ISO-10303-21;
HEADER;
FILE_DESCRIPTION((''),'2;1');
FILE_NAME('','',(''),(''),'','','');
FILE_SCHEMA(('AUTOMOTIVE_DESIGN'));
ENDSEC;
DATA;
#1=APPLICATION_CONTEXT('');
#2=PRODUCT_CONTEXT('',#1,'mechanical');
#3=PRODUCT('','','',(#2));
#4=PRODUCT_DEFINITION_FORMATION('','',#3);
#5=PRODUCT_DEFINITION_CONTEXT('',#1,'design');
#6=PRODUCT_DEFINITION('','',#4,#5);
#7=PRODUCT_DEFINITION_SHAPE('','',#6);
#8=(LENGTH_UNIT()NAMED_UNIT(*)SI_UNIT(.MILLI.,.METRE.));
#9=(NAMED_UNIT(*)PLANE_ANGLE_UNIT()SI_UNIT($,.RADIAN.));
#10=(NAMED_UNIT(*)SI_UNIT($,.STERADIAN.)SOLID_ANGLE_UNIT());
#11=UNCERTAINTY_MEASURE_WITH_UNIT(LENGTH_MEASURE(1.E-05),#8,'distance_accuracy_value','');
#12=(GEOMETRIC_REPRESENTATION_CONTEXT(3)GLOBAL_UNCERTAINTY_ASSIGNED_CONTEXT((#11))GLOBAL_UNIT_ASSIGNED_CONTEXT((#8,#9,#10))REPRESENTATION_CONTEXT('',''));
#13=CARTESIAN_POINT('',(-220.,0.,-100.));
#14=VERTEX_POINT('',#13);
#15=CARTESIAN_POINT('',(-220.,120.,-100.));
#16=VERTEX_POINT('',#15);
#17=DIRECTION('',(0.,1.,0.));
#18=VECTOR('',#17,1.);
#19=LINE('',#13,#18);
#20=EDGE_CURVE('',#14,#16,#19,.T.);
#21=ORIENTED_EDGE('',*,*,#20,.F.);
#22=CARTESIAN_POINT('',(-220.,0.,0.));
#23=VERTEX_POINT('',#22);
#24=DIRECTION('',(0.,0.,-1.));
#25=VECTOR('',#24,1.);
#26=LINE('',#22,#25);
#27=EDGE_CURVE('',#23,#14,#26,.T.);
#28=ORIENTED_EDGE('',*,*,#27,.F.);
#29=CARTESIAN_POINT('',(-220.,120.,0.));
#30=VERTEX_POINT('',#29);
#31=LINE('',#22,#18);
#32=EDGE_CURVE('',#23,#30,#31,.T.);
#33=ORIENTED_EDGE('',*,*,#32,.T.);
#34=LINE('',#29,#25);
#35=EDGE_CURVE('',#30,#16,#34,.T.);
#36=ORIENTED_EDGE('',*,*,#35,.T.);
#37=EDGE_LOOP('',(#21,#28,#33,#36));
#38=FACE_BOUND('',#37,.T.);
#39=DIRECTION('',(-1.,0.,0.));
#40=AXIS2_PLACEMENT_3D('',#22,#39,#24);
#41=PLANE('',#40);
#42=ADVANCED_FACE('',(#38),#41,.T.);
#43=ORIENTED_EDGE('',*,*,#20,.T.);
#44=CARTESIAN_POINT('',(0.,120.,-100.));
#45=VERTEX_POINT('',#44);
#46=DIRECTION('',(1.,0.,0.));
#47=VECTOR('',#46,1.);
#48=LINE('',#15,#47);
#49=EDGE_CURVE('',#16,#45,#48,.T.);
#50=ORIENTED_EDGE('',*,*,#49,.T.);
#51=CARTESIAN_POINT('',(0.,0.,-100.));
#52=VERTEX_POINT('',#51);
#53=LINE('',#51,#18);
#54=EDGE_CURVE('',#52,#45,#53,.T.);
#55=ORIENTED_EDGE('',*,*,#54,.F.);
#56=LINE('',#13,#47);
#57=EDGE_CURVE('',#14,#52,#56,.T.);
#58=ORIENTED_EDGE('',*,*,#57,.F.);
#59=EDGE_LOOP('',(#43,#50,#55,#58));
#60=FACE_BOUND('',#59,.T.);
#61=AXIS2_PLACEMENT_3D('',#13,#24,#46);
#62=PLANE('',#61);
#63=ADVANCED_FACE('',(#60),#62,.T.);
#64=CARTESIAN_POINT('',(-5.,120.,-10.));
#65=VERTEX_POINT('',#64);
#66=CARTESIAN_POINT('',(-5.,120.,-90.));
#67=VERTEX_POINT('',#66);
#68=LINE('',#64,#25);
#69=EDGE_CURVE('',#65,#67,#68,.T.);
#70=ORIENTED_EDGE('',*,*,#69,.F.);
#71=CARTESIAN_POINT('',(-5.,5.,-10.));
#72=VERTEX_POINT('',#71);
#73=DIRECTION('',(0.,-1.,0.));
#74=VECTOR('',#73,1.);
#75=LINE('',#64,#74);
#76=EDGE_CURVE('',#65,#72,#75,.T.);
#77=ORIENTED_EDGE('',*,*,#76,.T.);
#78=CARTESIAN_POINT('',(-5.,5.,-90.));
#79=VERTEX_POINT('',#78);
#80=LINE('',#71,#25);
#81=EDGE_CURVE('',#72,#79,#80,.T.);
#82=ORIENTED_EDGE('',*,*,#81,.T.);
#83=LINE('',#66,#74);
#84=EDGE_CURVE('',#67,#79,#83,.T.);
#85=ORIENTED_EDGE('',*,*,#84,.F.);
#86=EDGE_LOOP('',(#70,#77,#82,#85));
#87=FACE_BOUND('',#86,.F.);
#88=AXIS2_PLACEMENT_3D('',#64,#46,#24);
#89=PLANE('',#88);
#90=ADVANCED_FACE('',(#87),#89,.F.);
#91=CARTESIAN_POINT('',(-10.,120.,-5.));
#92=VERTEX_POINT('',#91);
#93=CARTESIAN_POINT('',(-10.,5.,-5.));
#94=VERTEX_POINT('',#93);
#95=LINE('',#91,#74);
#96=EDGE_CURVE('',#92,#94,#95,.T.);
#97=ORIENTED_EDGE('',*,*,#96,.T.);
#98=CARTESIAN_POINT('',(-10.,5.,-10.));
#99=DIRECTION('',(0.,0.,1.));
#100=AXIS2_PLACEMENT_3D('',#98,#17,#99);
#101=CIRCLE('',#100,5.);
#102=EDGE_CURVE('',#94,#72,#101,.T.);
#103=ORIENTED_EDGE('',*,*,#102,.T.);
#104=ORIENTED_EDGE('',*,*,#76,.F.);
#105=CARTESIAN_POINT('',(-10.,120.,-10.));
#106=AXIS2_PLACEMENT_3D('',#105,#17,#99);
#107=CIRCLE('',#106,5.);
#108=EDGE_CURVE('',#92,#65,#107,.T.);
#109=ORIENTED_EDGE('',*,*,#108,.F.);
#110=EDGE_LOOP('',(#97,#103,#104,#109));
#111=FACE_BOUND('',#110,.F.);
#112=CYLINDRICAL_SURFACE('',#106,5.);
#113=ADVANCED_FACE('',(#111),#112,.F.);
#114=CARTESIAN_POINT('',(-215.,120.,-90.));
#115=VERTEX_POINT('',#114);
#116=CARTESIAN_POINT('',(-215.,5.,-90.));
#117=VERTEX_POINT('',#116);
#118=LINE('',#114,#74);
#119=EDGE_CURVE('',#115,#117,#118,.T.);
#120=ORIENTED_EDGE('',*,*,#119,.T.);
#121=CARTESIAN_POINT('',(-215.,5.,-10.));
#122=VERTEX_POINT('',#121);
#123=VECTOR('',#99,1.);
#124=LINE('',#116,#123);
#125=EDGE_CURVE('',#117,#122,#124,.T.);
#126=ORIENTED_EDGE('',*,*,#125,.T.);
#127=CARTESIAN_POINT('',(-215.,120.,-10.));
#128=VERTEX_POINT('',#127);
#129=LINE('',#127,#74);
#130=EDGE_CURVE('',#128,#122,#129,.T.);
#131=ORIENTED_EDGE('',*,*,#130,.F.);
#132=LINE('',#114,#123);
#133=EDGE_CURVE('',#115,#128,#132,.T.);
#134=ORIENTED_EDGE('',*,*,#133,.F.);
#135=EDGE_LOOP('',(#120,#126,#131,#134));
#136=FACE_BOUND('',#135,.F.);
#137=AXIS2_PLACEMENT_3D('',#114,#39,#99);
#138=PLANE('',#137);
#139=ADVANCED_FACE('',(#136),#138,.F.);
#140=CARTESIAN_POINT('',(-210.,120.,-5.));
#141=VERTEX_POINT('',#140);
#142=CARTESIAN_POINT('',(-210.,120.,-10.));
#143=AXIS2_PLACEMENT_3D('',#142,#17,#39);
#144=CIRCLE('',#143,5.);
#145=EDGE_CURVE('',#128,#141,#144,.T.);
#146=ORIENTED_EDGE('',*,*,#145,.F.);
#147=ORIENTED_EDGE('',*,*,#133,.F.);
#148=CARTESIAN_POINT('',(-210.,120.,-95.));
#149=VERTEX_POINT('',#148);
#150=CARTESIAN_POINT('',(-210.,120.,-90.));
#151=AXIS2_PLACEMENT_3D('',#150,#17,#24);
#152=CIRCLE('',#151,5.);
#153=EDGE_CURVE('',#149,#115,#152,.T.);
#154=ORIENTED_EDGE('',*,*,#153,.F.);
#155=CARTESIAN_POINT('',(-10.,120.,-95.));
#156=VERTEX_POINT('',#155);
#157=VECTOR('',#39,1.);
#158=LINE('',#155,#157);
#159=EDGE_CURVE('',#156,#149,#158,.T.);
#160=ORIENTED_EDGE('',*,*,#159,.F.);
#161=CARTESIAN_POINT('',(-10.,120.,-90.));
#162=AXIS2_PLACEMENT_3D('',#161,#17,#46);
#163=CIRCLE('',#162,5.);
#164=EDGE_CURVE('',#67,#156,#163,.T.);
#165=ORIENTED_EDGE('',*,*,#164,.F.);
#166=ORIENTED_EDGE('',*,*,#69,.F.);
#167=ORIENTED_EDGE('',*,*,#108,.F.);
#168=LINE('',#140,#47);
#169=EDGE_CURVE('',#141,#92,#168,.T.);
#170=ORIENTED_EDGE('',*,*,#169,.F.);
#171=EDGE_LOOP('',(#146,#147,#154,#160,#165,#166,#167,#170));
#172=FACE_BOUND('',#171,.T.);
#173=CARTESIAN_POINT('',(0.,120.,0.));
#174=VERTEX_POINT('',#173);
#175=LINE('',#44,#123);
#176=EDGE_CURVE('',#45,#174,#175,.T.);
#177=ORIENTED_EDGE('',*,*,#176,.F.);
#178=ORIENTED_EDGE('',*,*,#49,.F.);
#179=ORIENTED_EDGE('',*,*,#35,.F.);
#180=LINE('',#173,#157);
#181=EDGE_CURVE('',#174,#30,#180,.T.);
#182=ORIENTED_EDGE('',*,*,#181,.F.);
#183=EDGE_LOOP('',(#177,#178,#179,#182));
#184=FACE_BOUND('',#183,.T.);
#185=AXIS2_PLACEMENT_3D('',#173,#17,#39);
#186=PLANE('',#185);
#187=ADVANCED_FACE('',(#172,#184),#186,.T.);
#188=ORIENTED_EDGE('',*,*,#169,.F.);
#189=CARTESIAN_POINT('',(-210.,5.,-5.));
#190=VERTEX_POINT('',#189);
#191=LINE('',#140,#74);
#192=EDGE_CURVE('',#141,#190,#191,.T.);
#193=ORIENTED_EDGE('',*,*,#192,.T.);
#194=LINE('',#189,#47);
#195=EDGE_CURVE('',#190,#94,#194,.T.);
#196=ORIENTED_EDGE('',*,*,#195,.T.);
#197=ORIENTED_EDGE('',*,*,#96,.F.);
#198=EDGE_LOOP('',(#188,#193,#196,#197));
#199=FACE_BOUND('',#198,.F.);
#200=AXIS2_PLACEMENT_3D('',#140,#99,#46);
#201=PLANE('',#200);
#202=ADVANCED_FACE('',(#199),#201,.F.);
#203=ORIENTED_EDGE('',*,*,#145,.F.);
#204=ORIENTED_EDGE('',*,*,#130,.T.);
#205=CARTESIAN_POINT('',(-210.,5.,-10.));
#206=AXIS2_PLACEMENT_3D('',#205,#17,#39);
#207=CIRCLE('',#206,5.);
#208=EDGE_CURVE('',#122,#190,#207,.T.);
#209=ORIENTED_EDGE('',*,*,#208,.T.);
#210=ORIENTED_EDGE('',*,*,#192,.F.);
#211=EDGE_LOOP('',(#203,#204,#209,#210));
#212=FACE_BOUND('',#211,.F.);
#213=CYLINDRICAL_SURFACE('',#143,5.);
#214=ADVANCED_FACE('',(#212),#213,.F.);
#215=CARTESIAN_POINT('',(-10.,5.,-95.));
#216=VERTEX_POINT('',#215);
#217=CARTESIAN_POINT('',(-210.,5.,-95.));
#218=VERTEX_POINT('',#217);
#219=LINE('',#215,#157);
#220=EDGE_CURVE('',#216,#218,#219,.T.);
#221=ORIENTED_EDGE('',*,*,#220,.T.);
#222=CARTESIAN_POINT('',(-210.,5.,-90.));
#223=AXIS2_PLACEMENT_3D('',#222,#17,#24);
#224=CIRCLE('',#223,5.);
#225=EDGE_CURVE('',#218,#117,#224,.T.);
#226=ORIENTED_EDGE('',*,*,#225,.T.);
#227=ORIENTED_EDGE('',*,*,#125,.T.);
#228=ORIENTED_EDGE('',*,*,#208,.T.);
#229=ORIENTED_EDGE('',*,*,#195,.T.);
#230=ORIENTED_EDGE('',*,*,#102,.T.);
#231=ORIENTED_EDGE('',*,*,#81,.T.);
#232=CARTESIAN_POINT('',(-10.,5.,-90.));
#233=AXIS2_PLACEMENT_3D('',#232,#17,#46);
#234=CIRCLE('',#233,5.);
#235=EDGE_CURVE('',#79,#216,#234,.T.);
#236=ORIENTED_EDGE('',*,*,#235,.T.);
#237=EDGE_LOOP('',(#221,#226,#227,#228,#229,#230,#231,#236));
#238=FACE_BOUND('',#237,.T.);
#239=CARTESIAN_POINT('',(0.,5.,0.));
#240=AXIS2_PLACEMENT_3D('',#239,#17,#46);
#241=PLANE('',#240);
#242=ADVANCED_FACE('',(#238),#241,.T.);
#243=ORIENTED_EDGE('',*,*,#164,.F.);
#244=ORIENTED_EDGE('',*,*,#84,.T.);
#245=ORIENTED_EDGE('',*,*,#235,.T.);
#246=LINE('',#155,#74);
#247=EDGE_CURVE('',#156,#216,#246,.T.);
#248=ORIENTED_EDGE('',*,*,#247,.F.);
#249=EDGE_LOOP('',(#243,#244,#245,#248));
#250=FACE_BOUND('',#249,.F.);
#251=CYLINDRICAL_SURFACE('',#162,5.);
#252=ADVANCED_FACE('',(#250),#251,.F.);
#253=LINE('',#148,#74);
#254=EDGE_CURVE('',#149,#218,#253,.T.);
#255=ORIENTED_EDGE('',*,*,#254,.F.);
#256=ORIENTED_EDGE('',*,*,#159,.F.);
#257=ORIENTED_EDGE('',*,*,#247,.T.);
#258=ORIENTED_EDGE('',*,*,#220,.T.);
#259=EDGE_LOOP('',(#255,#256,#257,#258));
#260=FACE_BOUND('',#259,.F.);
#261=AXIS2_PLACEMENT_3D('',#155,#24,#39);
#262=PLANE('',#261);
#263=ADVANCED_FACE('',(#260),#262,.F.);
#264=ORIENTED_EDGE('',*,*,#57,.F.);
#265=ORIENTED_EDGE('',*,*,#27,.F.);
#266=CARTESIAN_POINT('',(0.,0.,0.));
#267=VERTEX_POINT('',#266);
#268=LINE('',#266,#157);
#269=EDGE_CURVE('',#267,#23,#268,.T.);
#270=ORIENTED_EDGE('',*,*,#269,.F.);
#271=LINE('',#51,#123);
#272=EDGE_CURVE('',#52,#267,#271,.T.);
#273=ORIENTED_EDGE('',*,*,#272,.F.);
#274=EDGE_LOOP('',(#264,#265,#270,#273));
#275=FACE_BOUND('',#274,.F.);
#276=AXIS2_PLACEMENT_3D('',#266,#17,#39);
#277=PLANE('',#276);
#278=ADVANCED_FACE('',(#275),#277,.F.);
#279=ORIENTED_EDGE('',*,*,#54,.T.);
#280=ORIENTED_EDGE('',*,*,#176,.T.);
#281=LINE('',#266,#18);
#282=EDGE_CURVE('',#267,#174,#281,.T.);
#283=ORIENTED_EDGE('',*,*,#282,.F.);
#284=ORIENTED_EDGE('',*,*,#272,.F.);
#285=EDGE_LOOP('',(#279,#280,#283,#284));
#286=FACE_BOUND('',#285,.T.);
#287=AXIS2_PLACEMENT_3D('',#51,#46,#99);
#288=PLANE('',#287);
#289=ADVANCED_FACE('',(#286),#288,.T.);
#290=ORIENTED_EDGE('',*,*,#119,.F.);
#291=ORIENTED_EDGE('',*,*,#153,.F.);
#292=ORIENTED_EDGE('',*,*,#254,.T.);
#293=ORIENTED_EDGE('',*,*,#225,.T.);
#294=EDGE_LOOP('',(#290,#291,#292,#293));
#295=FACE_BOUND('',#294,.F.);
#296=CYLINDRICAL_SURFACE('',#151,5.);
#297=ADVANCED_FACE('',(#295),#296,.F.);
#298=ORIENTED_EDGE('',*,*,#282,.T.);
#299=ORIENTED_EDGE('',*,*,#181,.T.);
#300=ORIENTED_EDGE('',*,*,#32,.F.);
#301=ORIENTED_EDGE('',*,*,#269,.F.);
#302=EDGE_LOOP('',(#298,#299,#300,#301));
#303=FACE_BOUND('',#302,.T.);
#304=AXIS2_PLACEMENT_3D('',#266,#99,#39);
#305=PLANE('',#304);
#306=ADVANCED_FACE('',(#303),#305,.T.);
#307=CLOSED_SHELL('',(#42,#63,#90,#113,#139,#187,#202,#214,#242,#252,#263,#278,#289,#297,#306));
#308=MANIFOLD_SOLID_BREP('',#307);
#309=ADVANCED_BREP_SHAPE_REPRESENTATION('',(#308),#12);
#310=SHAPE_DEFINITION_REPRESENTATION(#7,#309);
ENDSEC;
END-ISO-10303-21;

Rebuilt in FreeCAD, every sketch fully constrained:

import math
import FreeCAD as App
import Part
import Sketcher

V = App.Vector
Q = App.Units.Quantity


def add_polygon(sketch, points):
    """Adds a closed chain of lines whose ends are joined by coincident constraints."""
    first, n = sketch.GeometryCount, len(points)
    for a, b in zip(points, points[1:] + points[:1]):
        sketch.addGeometry(Part.LineSegment(App.Vector(*a, 0), App.Vector(*b, 0)), False)
    for i in range(n):
        sketch.addConstraint(Sketcher.Constraint("Coincident", first + i, 2, first + (i + 1) % n, 1))

doc = App.newDocument("Part")
params = doc.addObject("Spreadsheet::Sheet", "Params")
for row, (alias, value) in enumerate([
    ("sketch1_width", "220 mm"),
    ("sketch1_height", "100 mm"),
    ("pad1_length", "120 mm"),
    ("sketch2_radius", "5 mm"),
    ("sketch2_width", "200 mm"),
    ("sketch2_height", "80 mm"),
    ("pocket1_length", "115 mm"),
], start=1):
    params.set(f"A{row}", alias)
    params.set(f"B{row}", "=" + value)
    params.setAlias(f"B{row}", alias)

body = doc.addObject("PartDesign::Body", "Body")

# Sketch on XZ plane
sketch1 = body.newObject("Sketcher::SketchObject", "Sketch")
sketch1.AttachmentSupport = (doc.getObject("XZ_Plane"), [""])
sketch1.MapMode = "FlatFace"
add_polygon(sketch1, [(-220, 0), (0, 0), (0, -100), (-220, -100)])  # lines 0-3
sketch1.addConstraint([
    Sketcher.Constraint("Horizontal", 0),
    Sketcher.Constraint("Vertical", 1),
    Sketcher.Constraint("Horizontal", 2),
    Sketcher.Constraint("Vertical", 3),
    Sketcher.Constraint("Coincident", 0, 2, -1, 1),
    Sketcher.Constraint("DistanceX", 0, 1, 0, 2, Q("220 mm")),
    Sketcher.Constraint("DistanceY", 1, 2, 1, 1, Q("100 mm")),
])
sketch1.setExpression("Constraints[9]", "Params.sketch1_width")
sketch1.setExpression("Constraints[10]", "Params.sketch1_height")
pad1 = body.newObject("PartDesign::Pad", "Pad")
pad1.Profile = sketch1
pad1.setExpression("Length", "Params.pad1_length")
pad1.Reversed = True

# Sketch on XZ plane
sketch2 = body.newObject("Sketcher::SketchObject", "Sketch001")
sketch2.AttachmentSupport = (doc.getObject("XZ_Plane"), [""])
sketch2.MapMode = "FlatFace"
sketch2.AttachmentOffset = App.Placement(V(0, 0, -120), App.Rotation())
sketch2.addGeometry([
    Part.ArcOfCircle(Part.Circle(V(-210, -10, 0), V(0, 0, 1), 5), math.radians(90), math.radians(180)),  # 0
    Part.LineSegment(V(-210, -5, 0), V(-10, -5, 0)),  # 1
    Part.ArcOfCircle(Part.Circle(V(-10, -10, 0), V(0, 0, 1), 5), math.radians(0), math.radians(90)),  # 2
    Part.LineSegment(V(-5, -10, 0), V(-5, -90, 0)),  # 3
    Part.ArcOfCircle(Part.Circle(V(-10, -90, 0), V(0, 0, 1), 5), math.radians(-90), math.radians(0)),  # 4
    Part.LineSegment(V(-10, -95, 0), V(-210, -95, 0)),  # 5
    Part.ArcOfCircle(Part.Circle(V(-210, -90, 0), V(0, 0, 1), 5), math.radians(180), math.radians(270)),  # 6
    Part.LineSegment(V(-215, -90, 0), V(-215, -10, 0)),  # 7
], False)
sketch2.addConstraint([
    Sketcher.Constraint("Tangent", 0, 1, 1, 1),
    Sketcher.Constraint("Tangent", 1, 2, 2, 2),
    Sketcher.Constraint("Tangent", 2, 1, 3, 1),
    Sketcher.Constraint("Tangent", 3, 2, 4, 2),
    Sketcher.Constraint("Tangent", 4, 1, 5, 1),
    Sketcher.Constraint("Tangent", 5, 2, 6, 2),
    Sketcher.Constraint("Tangent", 6, 1, 7, 1),
    Sketcher.Constraint("Tangent", 7, 2, 0, 2),
    Sketcher.Constraint("Horizontal", 1),
    Sketcher.Constraint("Vertical", 3),
    Sketcher.Constraint("Horizontal", 5),
    Sketcher.Constraint("Vertical", 7),
    Sketcher.Constraint("Equal", 0, 2),
    Sketcher.Constraint("Equal", 2, 4),
    Sketcher.Constraint("Equal", 4, 6),
    Sketcher.Constraint("Radius", 0, Q("5 mm")),
    Sketcher.Constraint("DistanceY", 0, 1, -1, 1, Q("5 mm")),
    Sketcher.Constraint("DistanceX", 2, 1, -1, 1, Q("5 mm")),
    Sketcher.Constraint("DistanceX", 1, 1, 1, 2, Q("200 mm")),
    Sketcher.Constraint("DistanceY", 3, 2, 3, 1, Q("80 mm")),
])
sketch2.setExpression("Constraints[15]", "Params.sketch2_radius")
sketch2.setExpression("Constraints[18]", "Params.sketch2_width")
sketch2.setExpression("Constraints[19]", "Params.sketch2_height")
pocket1 = body.newObject("PartDesign::Pocket", "Pocket")
pocket1.Profile = sketch2
pocket1.setExpression("Length", "Params.pocket1_length")
pocket1.Reversed = True

doc.recompute()
